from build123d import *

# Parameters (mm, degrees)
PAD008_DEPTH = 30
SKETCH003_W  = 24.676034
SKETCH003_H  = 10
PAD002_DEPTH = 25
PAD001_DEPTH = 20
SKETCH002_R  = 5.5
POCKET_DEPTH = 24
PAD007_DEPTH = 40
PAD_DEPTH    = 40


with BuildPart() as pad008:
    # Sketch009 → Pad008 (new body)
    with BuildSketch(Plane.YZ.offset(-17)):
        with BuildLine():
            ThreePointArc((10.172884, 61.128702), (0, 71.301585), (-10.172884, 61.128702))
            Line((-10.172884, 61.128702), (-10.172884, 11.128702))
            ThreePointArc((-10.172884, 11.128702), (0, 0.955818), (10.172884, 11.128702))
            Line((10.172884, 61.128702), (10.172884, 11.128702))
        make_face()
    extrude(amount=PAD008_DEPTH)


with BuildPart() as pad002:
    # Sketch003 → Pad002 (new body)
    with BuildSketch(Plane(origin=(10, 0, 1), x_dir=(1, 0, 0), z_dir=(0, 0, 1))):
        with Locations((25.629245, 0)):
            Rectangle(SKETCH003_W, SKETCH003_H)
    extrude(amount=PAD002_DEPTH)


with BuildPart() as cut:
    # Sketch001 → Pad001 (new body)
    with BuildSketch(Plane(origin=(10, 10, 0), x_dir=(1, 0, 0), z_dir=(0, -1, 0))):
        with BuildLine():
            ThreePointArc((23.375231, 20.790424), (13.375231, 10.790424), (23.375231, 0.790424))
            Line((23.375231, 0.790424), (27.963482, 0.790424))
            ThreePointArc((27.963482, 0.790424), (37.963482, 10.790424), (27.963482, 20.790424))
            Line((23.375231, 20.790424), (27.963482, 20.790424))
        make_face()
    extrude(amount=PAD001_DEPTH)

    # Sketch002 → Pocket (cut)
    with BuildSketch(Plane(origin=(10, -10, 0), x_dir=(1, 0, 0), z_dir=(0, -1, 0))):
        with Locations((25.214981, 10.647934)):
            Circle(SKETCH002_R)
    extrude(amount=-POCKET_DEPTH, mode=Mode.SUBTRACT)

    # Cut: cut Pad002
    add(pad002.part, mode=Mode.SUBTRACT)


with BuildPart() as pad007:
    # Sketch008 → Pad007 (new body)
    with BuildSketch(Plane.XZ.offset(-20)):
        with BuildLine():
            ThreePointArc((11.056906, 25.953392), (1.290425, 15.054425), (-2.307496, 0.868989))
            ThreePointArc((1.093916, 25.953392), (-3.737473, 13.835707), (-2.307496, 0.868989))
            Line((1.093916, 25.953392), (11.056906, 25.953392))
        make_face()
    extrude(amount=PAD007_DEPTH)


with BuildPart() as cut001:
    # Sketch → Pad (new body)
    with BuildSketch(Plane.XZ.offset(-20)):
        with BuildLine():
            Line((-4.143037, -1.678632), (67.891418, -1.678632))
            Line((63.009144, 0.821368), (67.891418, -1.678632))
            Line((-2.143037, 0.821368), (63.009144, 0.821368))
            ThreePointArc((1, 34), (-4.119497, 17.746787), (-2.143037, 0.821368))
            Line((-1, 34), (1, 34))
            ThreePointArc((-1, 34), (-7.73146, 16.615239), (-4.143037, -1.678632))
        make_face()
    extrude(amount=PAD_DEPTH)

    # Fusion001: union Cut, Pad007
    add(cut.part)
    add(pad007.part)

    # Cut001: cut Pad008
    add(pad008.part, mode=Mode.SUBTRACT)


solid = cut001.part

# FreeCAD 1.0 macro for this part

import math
import FreeCAD as App
import Part
import Sketcher
from FreeCAD import Vector
Q = App.Units.Quantity


def add_polygon(sketch, points):
    """Adds a closed chain of lines whose ends are joined by coincident constraints."""
    first, n = sketch.GeometryCount, len(points)
    for a, b in zip(points, points[1:] + points[:1]):
        sketch.addGeometry(Part.LineSegment(App.Vector(*a, 0), App.Vector(*b, 0)), False)
    for i in range(n):
        sketch.addConstraint(Sketcher.Constraint("Coincident", first + i, 2, first + (i + 1) % n, 1))

doc = App.newDocument("Part")
body = doc.addObject("PartDesign::Body", "Body")

# Sketch on YZ plane
sketch1 = body.newObject("Sketcher::SketchObject", "Sketch")
sketch1.AttachmentSupport = (doc.getObject("YZ_Plane"), [""])
sketch1.MapMode = "FlatFace"
sketch1.AttachmentOffset = App.Placement(Vector(0, 0, -17), App.Rotation())
sketch1.addGeometry([
    Part.ArcOfCircle(Part.Circle(Vector(0, 61.128701, 0), Vector(0, 0, 1), 10.172884), math.radians(0.000006), math.radians(179.999994)),
    Part.LineSegment(Vector(-10.172884, 61.128702, 0), Vector(-10.172884, 11.128702, 0)),
    Part.ArcOfCircle(Part.Circle(Vector(0, 11.128702, 0), Vector(0, 0, 1), 10.172884), math.radians(180), math.radians(360)),
    Part.LineSegment(Vector(10.172884, 11.128702, 0), Vector(10.172884, 61.128702, 0)),
], False)
sketch1.addConstraint([
    Sketcher.Constraint("Tangent", 0, 2, 1, 1),
    Sketcher.Constraint("Tangent", 1, 2, 2, 1),
    Sketcher.Constraint("Tangent", 2, 2, 3, 1),
    Sketcher.Constraint("Tangent", 3, 2, 0, 1),
    Sketcher.Constraint("Vertical", 1),
    Sketcher.Constraint("Vertical", 3),
    Sketcher.Constraint("PointOnObject", 0, 3, -2),
    Sketcher.Constraint("DistanceY", 1, 2, 1, 1, Q("50 mm")),
    Sketcher.Constraint("Radius", 0, Q("10.172884 mm")),
    Sketcher.Constraint("DistanceY", -1, 1, 0, 3, Q("61.128701 mm")),
])
pad1 = body.newObject("PartDesign::Pad", "Pad")
pad1.Profile = sketch1
pad1.Length = 30
body2 = doc.addObject("PartDesign::Body", "Body001")

# Sketch on XY plane
sketch2 = body2.newObject("Sketcher::SketchObject", "Sketch001")
sketch2.AttachmentSupport = (doc.getObject("XY_Plane001"), [""])
sketch2.MapMode = "FlatFace"
sketch2.AttachmentOffset = App.Placement(Vector(0, 0, 1), App.Rotation())
add_polygon(sketch2, [(23.291228, 5), (23.291228, -5), (47.967262, -5), (47.967262, 5)])  # lines 0-3
sketch2.addConstraint([
    Sketcher.Constraint("Vertical", 0),
    Sketcher.Constraint("Horizontal", 1),
    Sketcher.Constraint("Vertical", 2),
    Sketcher.Constraint("Horizontal", 3),
    Sketcher.Constraint("DistanceY", 0, 2, 0, 1, Q("10 mm")),
    Sketcher.Constraint("DistanceY", 0, 2, -1, 1, Q("5 mm")),
    Sketcher.Constraint("DistanceX", 1, 1, 1, 2, Q("24.676034 mm")),
    Sketcher.Constraint("DistanceX", -1, 1, 0, 2, Q("23.291228 mm")),
])
pad2 = body2.newObject("PartDesign::Pad", "Pad001")
pad2.Profile = sketch2
pad2.Length = 25
body3 = doc.addObject("PartDesign::Body", "Body002")

# Sketch on XZ plane
sketch3 = body3.newObject("Sketcher::SketchObject", "Sketch002")
sketch3.AttachmentSupport = (doc.getObject("XZ_Plane002"), [""])
sketch3.MapMode = "FlatFace"
sketch3.AttachmentOffset = App.Placement(Vector(0, 0, -10), App.Rotation())
sketch3.addGeometry([
    Part.ArcOfCircle(Part.Circle(Vector(33.375231, 10.790424, 0), Vector(0, 0, 1), 10), math.radians(90), math.radians(270)),
    Part.LineSegment(Vector(33.375231, 0.790424, 0), Vector(37.963482, 0.790424, 0)),
    Part.ArcOfCircle(Part.Circle(Vector(37.963482, 10.790424, 0), Vector(0, 0, 1), 10), math.radians(-90), math.radians(90)),
    Part.LineSegment(Vector(37.963482, 20.790424, 0), Vector(33.375231, 20.790424, 0)),
], False)
sketch3.addConstraint([
    Sketcher.Constraint("Tangent", 0, 2, 1, 1),
    Sketcher.Constraint("Tangent", 1, 2, 2, 1),
    Sketcher.Constraint("Tangent", 2, 2, 3, 1),
    Sketcher.Constraint("Tangent", 3, 2, 0, 1),
    Sketcher.Constraint("Horizontal", 1),
    Sketcher.Constraint("Horizontal", 3),
    Sketcher.Constraint("Radius", 0, Q("10 mm")),
    Sketcher.Constraint("DistanceX", 1, 1, 1, 2, Q("4.588251 mm")),
    Sketcher.Constraint("DistanceX", -1, 1, 0, 3, Q("33.375231 mm")),
    Sketcher.Constraint("DistanceY", -1, 1, 0, 3, Q("10.790424 mm")),
])
pad3 = body3.newObject("PartDesign::Pad", "Pad002")
pad3.Profile = sketch3
pad3.Length = 20

# Sketch on XZ plane
sketch4 = body3.newObject("Sketcher::SketchObject", "Sketch003")
sketch4.AttachmentSupport = (doc.getObject("XZ_Plane002"), [""])
sketch4.MapMode = "FlatFace"
sketch4.AttachmentOffset = App.Placement(Vector(0, 0, 10), App.Rotation())
sketch4.addGeometry(Part.Circle(Vector(35.214981, 10.647934, 0), Vector(0, 0, 1), 5.5), False)
sketch4.addConstraint([
    Sketcher.Constraint("Diameter", 0, Q("11 mm")),
    Sketcher.Constraint("DistanceX", -1, 1, 0, 3, Q("35.214981 mm")),
    Sketcher.Constraint("DistanceY", -1, 1, 0, 3, Q("10.647934 mm")),
])
pocket1 = body3.newObject("PartDesign::Pocket", "Pocket")
pocket1.Profile = sketch4
pocket1.Length = 24
doc.recompute()

boolean = body3.newObject("PartDesign::Boolean", "Boolean")
boolean.Type = "Cut"
boolean.addObjects([body2])
body4 = doc.addObject("PartDesign::Body", "Body003")

# Sketch on XZ plane
sketch5 = body4.newObject("Sketcher::SketchObject", "Sketch004")
sketch5.AttachmentSupport = (doc.getObject("XZ_Plane003"), [""])
sketch5.MapMode = "FlatFace"
sketch5.AttachmentOffset = App.Placement(Vector(0, 0, -20), App.Rotation())
sketch5.addGeometry([
    Part.ArcOfCircle(Part.Circle(Vector(28.333949, 0.646248, 0), Vector(0, 0, 1), 30.642255), math.radians(124.321131), math.radians(179.583508)),
    Part.LineSegment(Vector(11.056906, 25.953392, 0), Vector(1.093916, 25.953392, 0)),
    Part.ArcOfCircle(Part.Circle(Vector(22.951271, 10.216748, 0), Vector(0, 0, 1), 26.932989), math.radians(144.247239), math.radians(200.308495)),
], False)
sketch5.addConstraint([
    Sketcher.Constraint("Coincident", 0, 1, 1, 1),
    Sketcher.Constraint("Coincident", 1, 2, 2, 1),
    Sketcher.Constraint("Coincident", 2, 2, 0, 2),
    Sketcher.Constraint("Horizontal", 1),
    Sketcher.Constraint("Radius", 2, Q("26.932989 mm")),
    Sketcher.Constraint("Radius", 0, Q("30.642255 mm")),
    Sketcher.Constraint("DistanceX", 1, 2, 1, 1, Q("9.96299 mm")),
    Sketcher.Constraint("DistanceY", 0, 3, 2, 3, Q("9.570501 mm")),
    Sketcher.Constraint("DistanceX", 2, 2, 0, 1, Q("13.364402 mm")),
    Sketcher.Constraint("DistanceX", -1, 1, 0, 3, Q("28.333949 mm")),
    Sketcher.Constraint("DistanceY", -1, 1, 2, 3, Q("10.216748 mm")),
])
pad4 = body4.newObject("PartDesign::Pad", "Pad003")
pad4.Profile = sketch5
pad4.Length = 40
body5 = doc.addObject("PartDesign::Body", "Body004")

# Sketch on XZ plane
sketch6 = body5.newObject("Sketcher::SketchObject", "Sketch005")
sketch6.AttachmentSupport = (doc.getObject("XZ_Plane004"), [""])
sketch6.MapMode = "FlatFace"
sketch6.AttachmentOffset = App.Placement(Vector(0, 0, -20), App.Rotation())
sketch6.addGeometry([
    Part.LineSegment(Vector(-4.143037, -1.678632, 0), Vector(67.891418, -1.678632, 0)),  # 0
    Part.LineSegment(Vector(67.891418, -1.678632, 0), Vector(63.009144, 0.821368, 0)),  # 1
    Part.LineSegment(Vector(63.009144, 0.821368, 0), Vector(-2.143037, 0.821368, 0)),  # 2
    Part.ArcOfCircle(Part.Circle(Vector(36.437901, 13.904754, 0), Vector(0, 0, 1), 40.738971), math.radians(150.44437), math.radians(198.732583)),  # 3
    Part.LineSegment(Vector(1, 34, 0), Vector(-1, 34, 0)),  # 4
    Part.ArcOfCircle(Part.Circle(Vector(25.686185, 13.671379, 0), Vector(0, 0, 1), 33.547061), math.radians(142.701092), math.radians(207.230188)),  # 5
], False)
sketch6.addConstraint([
    Sketcher.Constraint("Coincident", 0, 2, 1, 1),
    Sketcher.Constraint("Coincident", 1, 2, 2, 1),
    Sketcher.Constraint("Coincident", 2, 2, 3, 2),
    Sketcher.Constraint("Coincident", 3, 1, 4, 1),
    Sketcher.Constraint("Coincident", 4, 2, 5, 1),
    Sketcher.Constraint("Coincident", 5, 2, 0, 1),
    Sketcher.Constraint("Horizontal", 0),
    Sketcher.Constraint("Horizontal", 2),
    Sketcher.Constraint("Horizontal", 4),
    Sketcher.Constraint("DistanceX", 4, 2, 4, 1, Q("2 mm")),
    Sketcher.Constraint("DistanceX", -1, 1, 3, 1, Q("1 mm")),
    Sketcher.Constraint("DistanceY", -1, 1, 3, 1, Q("34 mm")),
    Sketcher.Constraint("DistanceX", 5, 2, 2, 2, Q("2 mm")),
    Sketcher.Constraint("DistanceY", 0, 2, 1, 2, Q("2.5 mm")),
    Sketcher.Constraint("Radius", 3, Q("40.738971 mm")),
    Sketcher.Constraint("Radius", 5, Q("33.547061 mm")),
    Sketcher.Constraint("DistanceX", 2, 2, 2, 1, Q("65.152181 mm")),
    Sketcher.Constraint("DistanceX", -1, 1, 3, 3, Q("36.437901 mm")),
    Sketcher.Constraint("DistanceX", 0, 1, 0, 2, Q("72.034455 mm")),
    Sketcher.Constraint("DistanceY", -1, 1, 5, 3, Q("13.671379 mm")),
])
pad5 = body5.newObject("PartDesign::Pad", "Pad004")
pad5.Profile = sketch6
pad5.Length = 40
doc.recompute()

boolean2 = body5.newObject("PartDesign::Boolean", "Boolean001")
boolean2.Type = "Fuse"
boolean2.addObjects([body3])
doc.recompute()

boolean3 = body5.newObject("PartDesign::Boolean", "Boolean002")
boolean3.Type = "Fuse"
boolean3.addObjects([body4])
doc.recompute()

boolean4 = body5.newObject("PartDesign::Boolean", "Boolean003")
boolean4.Type = "Cut"
boolean4.addObjects([body])

doc.recompute()
